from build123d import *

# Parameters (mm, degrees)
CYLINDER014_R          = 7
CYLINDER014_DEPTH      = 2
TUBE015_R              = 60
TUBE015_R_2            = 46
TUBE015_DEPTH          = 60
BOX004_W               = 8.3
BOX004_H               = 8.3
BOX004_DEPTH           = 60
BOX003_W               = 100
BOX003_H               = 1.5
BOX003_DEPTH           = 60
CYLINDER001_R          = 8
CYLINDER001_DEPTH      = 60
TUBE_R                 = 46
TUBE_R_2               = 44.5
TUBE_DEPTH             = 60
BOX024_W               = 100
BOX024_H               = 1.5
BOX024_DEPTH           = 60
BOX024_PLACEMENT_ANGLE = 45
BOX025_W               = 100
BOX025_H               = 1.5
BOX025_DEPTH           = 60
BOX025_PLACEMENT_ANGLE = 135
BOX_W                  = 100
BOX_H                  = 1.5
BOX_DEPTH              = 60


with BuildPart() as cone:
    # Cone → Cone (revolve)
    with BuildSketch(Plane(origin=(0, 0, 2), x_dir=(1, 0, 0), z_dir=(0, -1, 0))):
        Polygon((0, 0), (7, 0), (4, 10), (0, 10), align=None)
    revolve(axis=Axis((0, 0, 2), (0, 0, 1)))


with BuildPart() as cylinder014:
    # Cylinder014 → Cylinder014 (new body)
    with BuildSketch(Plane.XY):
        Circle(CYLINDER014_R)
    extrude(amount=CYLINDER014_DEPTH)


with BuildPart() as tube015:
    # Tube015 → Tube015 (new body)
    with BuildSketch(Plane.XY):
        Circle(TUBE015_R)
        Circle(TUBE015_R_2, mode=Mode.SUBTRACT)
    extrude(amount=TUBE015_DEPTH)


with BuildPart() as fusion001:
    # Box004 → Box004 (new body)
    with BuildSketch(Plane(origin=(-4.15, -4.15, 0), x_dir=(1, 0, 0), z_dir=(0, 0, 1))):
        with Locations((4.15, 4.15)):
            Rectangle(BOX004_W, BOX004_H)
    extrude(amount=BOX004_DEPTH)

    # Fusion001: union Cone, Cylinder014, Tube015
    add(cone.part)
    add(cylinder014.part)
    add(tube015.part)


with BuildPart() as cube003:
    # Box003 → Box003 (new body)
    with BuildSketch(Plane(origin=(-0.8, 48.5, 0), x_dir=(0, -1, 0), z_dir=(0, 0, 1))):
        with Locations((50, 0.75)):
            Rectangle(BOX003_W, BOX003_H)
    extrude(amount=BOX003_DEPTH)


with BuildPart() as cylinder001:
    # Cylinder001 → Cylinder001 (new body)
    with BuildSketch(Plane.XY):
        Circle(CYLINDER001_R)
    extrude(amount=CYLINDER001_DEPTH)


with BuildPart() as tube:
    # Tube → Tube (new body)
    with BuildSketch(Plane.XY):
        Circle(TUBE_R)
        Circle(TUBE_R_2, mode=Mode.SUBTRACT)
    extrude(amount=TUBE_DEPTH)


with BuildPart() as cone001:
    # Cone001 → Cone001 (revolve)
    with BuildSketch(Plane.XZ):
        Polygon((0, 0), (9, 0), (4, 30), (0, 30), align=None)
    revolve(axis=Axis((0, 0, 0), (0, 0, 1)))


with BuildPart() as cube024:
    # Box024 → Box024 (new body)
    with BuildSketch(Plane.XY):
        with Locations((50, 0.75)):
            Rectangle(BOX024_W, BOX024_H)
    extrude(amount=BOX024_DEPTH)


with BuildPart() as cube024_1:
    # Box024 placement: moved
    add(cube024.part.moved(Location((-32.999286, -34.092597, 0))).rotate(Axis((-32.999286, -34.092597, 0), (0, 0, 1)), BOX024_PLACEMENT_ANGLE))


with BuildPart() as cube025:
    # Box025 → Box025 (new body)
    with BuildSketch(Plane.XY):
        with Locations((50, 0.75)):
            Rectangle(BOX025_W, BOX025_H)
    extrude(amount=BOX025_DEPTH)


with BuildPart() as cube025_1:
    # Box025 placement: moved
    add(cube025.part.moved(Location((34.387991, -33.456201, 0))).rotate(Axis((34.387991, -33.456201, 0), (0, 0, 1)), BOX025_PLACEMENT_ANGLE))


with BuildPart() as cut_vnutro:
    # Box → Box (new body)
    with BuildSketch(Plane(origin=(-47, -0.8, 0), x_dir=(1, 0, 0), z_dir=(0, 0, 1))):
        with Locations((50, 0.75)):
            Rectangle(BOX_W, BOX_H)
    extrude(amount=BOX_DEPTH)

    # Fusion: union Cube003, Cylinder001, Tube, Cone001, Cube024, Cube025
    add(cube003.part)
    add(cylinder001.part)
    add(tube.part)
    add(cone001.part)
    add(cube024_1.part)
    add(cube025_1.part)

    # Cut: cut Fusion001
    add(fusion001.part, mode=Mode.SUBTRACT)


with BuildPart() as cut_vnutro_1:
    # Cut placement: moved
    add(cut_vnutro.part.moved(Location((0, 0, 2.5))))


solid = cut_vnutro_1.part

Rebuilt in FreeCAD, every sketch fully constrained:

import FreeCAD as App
import Part
import Sketcher

V = App.Vector


def add_polygon(sketch, points):
    """Adds a closed chain of lines whose ends are joined by coincident constraints."""
    first, n = sketch.GeometryCount, len(points)
    for a, b in zip(points, points[1:] + points[:1]):
        sketch.addGeometry(Part.LineSegment(App.Vector(*a, 0), App.Vector(*b, 0)), False)
    for i in range(n):
        sketch.addConstraint(Sketcher.Constraint("Coincident", first + i, 2, first + (i + 1) % n, 1))

doc = App.newDocument("Part")
body = doc.addObject("PartDesign::Body", "Body")

# Sketch on XZ plane
sketch1 = body.newObject("Sketcher::SketchObject", "Sketch")
sketch1.AttachmentSupport = (doc.getObject("XZ_Plane"), [""])
sketch1.MapMode = "FlatFace"
add_polygon(sketch1, [(0, 2), (7, 2), (4, 12), (0, 12)])  # lines 0-3
sketch1.addConstraint(Sketcher.Constraint("Horizontal", 0))
sketch1.addConstraint(Sketcher.Constraint("Horizontal", 2))
sketch1.addConstraint(Sketcher.Constraint("Vertical", 3))
sketch1.addConstraint(Sketcher.Constraint("PointOnObject", 2, 2, -2))
sketch1.addConstraint(Sketcher.Constraint("DistanceX", 0, 1, 0, 2, 7.0))
sketch1.addConstraint(Sketcher.Constraint("DistanceX", 2, 2, 2, 1, 4.0))
sketch1.addConstraint(Sketcher.Constraint("DistanceY", 3, 2, 3, 1, 10.0))
sketch1.addConstraint(Sketcher.Constraint("DistanceY", -1, 1, 0, 2, 2.0))
revolution = body.newObject("PartDesign::Revolution", "Revolution")
revolution.Profile = sketch1
revolution.ReferenceAxis = (sketch1, ["V_Axis"])
revolution.Angle = 360
body2 = doc.addObject("PartDesign::Body", "Body001")

# Sketch on XY plane
sketch2 = body2.newObject("Sketcher::SketchObject", "Sketch001")
sketch2.AttachmentSupport = (doc.getObject("XY_Plane001"), [""])
sketch2.MapMode = "FlatFace"
sketch2.addGeometry(Part.Circle(V(0, 0, 0), V(0, 0, 1), 7), False)
sketch2.addConstraint(Sketcher.Constraint("Coincident", 0, 3, -1, 1))
sketch2.addConstraint(Sketcher.Constraint("Diameter", 0, 14.0))
pad1 = body2.newObject("PartDesign::Pad", "Pad")
pad1.Profile = sketch2
pad1.Length = 2
body3 = doc.addObject("PartDesign::Body", "Body002")

# Sketch on XY plane
sketch3 = body3.newObject("Sketcher::SketchObject", "Sketch002")
sketch3.AttachmentSupport = (doc.getObject("XY_Plane002"), [""])
sketch3.MapMode = "FlatFace"
sketch3.addGeometry(Part.Circle(V(0, 0, 0), V(0, 0, 1), 60), False)
sketch3.addGeometry(Part.Circle(V(0, 0, 0), V(0, 0, 1), 46), False)
sketch3.addConstraint(Sketcher.Constraint("Coincident", 0, 3, -1, 1))
sketch3.addConstraint(Sketcher.Constraint("Coincident", 1, 3, -1, 1))
sketch3.addConstraint(Sketcher.Constraint("Diameter", 0, 120.0))
sketch3.addConstraint(Sketcher.Constraint("Diameter", 1, 92.0))
pad2 = body3.newObject("PartDesign::Pad", "Pad001")
pad2.Profile = sketch3
pad2.Length = 60
body4 = doc.addObject("PartDesign::Body", "Body003")
body4.AllowCompound = True

# Sketch on XY plane
sketch4 = body4.newObject("Sketcher::SketchObject", "Sketch003")
sketch4.AttachmentSupport = (doc.getObject("XY_Plane003"), [""])
sketch4.MapMode = "FlatFace"
add_polygon(sketch4, [(-4, 4), (-4, -4), (4, -4), (4, 4)])  # lines 0-3
sketch4.addConstraint(Sketcher.Constraint("Vertical", 0))
sketch4.addConstraint(Sketcher.Constraint("Horizontal", 1))
sketch4.addConstraint(Sketcher.Constraint("Vertical", 2))
sketch4.addConstraint(Sketcher.Constraint("Horizontal", 3))
sketch4.addConstraint(Sketcher.Constraint("Symmetric", 0, 2, 2, 2, -1, 1))
sketch4.addConstraint(Sketcher.Constraint("Equal", 3, 0))
sketch4.addConstraint(Sketcher.Constraint("DistanceX", 1, 1, 1, 2, 8.3))
pad3 = body4.newObject("PartDesign::Pad", "Pad002")
pad3.Profile = sketch4
pad3.Length = 60
doc.recompute()

boolean = body4.newObject("PartDesign::Boolean", "Boolean")
boolean.Type = "Fuse"
boolean.addObjects([body])
doc.recompute()

boolean2 = body4.newObject("PartDesign::Boolean", "Boolean001")
boolean2.Type = "Fuse"
boolean2.addObjects([body2])
doc.recompute()

boolean3 = body4.newObject("PartDesign::Boolean", "Boolean002")
boolean3.Type = "Fuse"
boolean3.addObjects([body3])
body5 = doc.addObject("PartDesign::Body", "Body004")

# Sketch on XY plane
sketch5 = body5.newObject("Sketcher::SketchObject", "Sketch004")
sketch5.AttachmentSupport = (doc.getObject("XY_Plane004"), [""])
sketch5.MapMode = "FlatFace"
add_polygon(sketch5, [(0.7, 48.5), (-0.8, 48.5), (-0.8, -51.5), (0.7, -51.5)])  # lines 0-3
sketch5.addConstraint(Sketcher.Constraint("Horizontal", 0))
sketch5.addConstraint(Sketcher.Constraint("Vertical", 1))
sketch5.addConstraint(Sketcher.Constraint("Horizontal", 2))
sketch5.addConstraint(Sketcher.Constraint("Vertical", 3))
sketch5.addConstraint(Sketcher.Constraint("DistanceY", 1, 2, 1, 1, 100.0))
sketch5.addConstraint(Sketcher.Constraint("DistanceX", 0, 2, 0, 1, 1.5))
sketch5.addConstraint(Sketcher.Constraint("DistanceX", 0, 2, -1, 1, 0.8))
sketch5.addConstraint(Sketcher.Constraint("DistanceY", -1, 1, 0, 2, 48.5))
pad4 = body5.newObject("PartDesign::Pad", "Pad003")
pad4.Profile = sketch5
pad4.Length = 60
body6 = doc.addObject("PartDesign::Body", "Body005")

# Sketch on XY plane
sketch6 = body6.newObject("Sketcher::SketchObject", "Sketch005")
sketch6.AttachmentSupport = (doc.getObject("XY_Plane005"), [""])
sketch6.MapMode = "FlatFace"
sketch6.addGeometry(Part.Circle(V(0, 0, 0), V(0, 0, 1), 8), False)
sketch6.addConstraint(Sketcher.Constraint("Coincident", 0, 3, -1, 1))
sketch6.addConstraint(Sketcher.Constraint("Diameter", 0, 16.0))
pad5 = body6.newObject("PartDesign::Pad", "Pad004")
pad5.Profile = sketch6
pad5.Length = 60
body7 = doc.addObject("PartDesign::Body", "Body006")

# Sketch on XY plane
sketch7 = body7.newObject("Sketcher::SketchObject", "Sketch006")
sketch7.AttachmentSupport = (doc.getObject("XY_Plane006"), [""])
sketch7.MapMode = "FlatFace"
sketch7.addGeometry(Part.Circle(V(0, 0, 0), V(0, 0, 1), 46), False)
sketch7.addGeometry(Part.Circle(V(0, 0, 0), V(0, 0, 1), 44), False)
sketch7.addConstraint(Sketcher.Constraint("Coincident", 0, 3, -1, 1))
sketch7.addConstraint(Sketcher.Constraint("Coincident", 1, 3, -1, 1))
sketch7.addConstraint(Sketcher.Constraint("Diameter", 0, 92.0))
sketch7.addConstraint(Sketcher.Constraint("Diameter", 1, 89.0))
pad6 = body7.newObject("PartDesign::Pad", "Pad005")
pad6.Profile = sketch7
pad6.Length = 60
body8 = doc.addObject("PartDesign::Body", "Body007")

# Sketch on XZ plane
sketch8 = body8.newObject("Sketcher::SketchObject", "Sketch007")
sketch8.AttachmentSupport = (doc.getObject("XZ_Plane007"), [""])
sketch8.MapMode = "FlatFace"
add_polygon(sketch8, [(0, 0), (9, 0), (4, 30), (0, 30)])  # lines 0-3
sketch8.addConstraint(Sketcher.Constraint("Horizontal", 0))
sketch8.addConstraint(Sketcher.Constraint("Horizontal", 2))
sketch8.addConstraint(Sketcher.Constraint("Vertical", 3))
sketch8.addConstraint(Sketcher.Constraint("Coincident", 3, 2, -1, 1))
sketch8.addConstraint(Sketcher.Constraint("DistanceX", 0, 1, 0, 2, 9.0))
sketch8.addConstraint(Sketcher.Constraint("DistanceX", 2, 2, 2, 1, 4.0))
sketch8.addConstraint(Sketcher.Constraint("DistanceY", 3, 2, 3, 1, 30.0))
revolution2 = body8.newObject("PartDesign::Revolution", "Revolution001")
revolution2.Profile = sketch8
revolution2.ReferenceAxis = (sketch8, ["V_Axis"])
revolution2.Angle = 360
body9 = doc.addObject("PartDesign::Body", "Body008")

# Sketch on XY plane
sketch9 = body9.newObject("Sketcher::SketchObject", "Sketch008")
sketch9.AttachmentSupport = (doc.getObject("XY_Plane008"), [""])
sketch9.MapMode = "FlatFace"
add_polygon(sketch9, [(0, 1.5), (0, 0), (100, 0), (100, 1.5)])  # lines 0-3
sketch9.addConstraint(Sketcher.Constraint("Vertical", 0))
sketch9.addConstraint(Sketcher.Constraint("Horizontal", 1))
sketch9.addConstraint(Sketcher.Constraint("Vertical", 2))
sketch9.addConstraint(Sketcher.Constraint("Horizontal", 3))
sketch9.addConstraint(Sketcher.Constraint("Coincident", 0, 2, -1, 1))
sketch9.addConstraint(Sketcher.Constraint("DistanceX", 1, 1, 1, 2, 100.0))
sketch9.addConstraint(Sketcher.Constraint("DistanceY", 0, 2, 0, 1, 1.5))
pad7 = body9.newObject("PartDesign::Pad", "Pad006")
pad7.Profile = sketch9
pad7.Length = 60
body10 = doc.addObject("PartDesign::Body", "Body009")
doc.recompute()

body9.Placement = App.Placement(V(-32.999286, -34.092597, 0), App.Rotation(V(0, 0, 1), 45))
boolean4 = body10.newObject("PartDesign::Boolean", "Boolean003")
boolean4.Type = "Fuse"
boolean4.addObjects([body9])
body11 = doc.addObject("PartDesign::Body", "Body010")

# Sketch on XY plane
sketch10 = body11.newObject("Sketcher::SketchObject", "Sketch009")
sketch10.AttachmentSupport = (doc.getObject("XY_Plane010"), [""])
sketch10.MapMode = "FlatFace"
add_polygon(sketch10, [(0, 1.5), (0, 0), (100, 0), (100, 1.5)])  # lines 0-3
sketch10.addConstraint(Sketcher.Constraint("Vertical", 0))
sketch10.addConstraint(Sketcher.Constraint("Horizontal", 1))
sketch10.addConstraint(Sketcher.Constraint("Vertical", 2))
sketch10.addConstraint(Sketcher.Constraint("Horizontal", 3))
sketch10.addConstraint(Sketcher.Constraint("Coincident", 0, 2, -1, 1))
sketch10.addConstraint(Sketcher.Constraint("DistanceX", 1, 1, 1, 2, 100.0))
sketch10.addConstraint(Sketcher.Constraint("DistanceY", 0, 2, 0, 1, 1.5))
pad8 = body11.newObject("PartDesign::Pad", "Pad007")
pad8.Profile = sketch10
pad8.Length = 60
body12 = doc.addObject("PartDesign::Body", "Body011")
doc.recompute()

body11.Placement = App.Placement(V(34.387991, -33.456201, 0), App.Rotation(V(0, 0, 1), 135))
boolean5 = body12.newObject("PartDesign::Boolean", "Boolean004")
boolean5.Type = "Fuse"
boolean5.addObjects([body11])
body13 = doc.addObject("PartDesign::Body", "Body012")

# Sketch on XY plane
sketch11 = body13.newObject("Sketcher::SketchObject", "Sketch010")
sketch11.AttachmentSupport = (doc.getObject("XY_Plane012"), [""])
sketch11.MapMode = "FlatFace"
add_polygon(sketch11, [(-47, 0.7), (-47, -0.8), (53, -0.8), (53, 0.7)])  # lines 0-3
sketch11.addConstraint(Sketcher.Constraint("Vertical", 0))
sketch11.addConstraint(Sketcher.Constraint("Horizontal", 1))
sketch11.addConstraint(Sketcher.Constraint("Vertical", 2))
sketch11.addConstraint(Sketcher.Constraint("Horizontal", 3))
sketch11.addConstraint(Sketcher.Constraint("DistanceX", 1, 1, 1, 2, 100.0))
sketch11.addConstraint(Sketcher.Constraint("DistanceY", 0, 2, 0, 1, 1.5))
sketch11.addConstraint(Sketcher.Constraint("DistanceX", 0, 2, -1, 1, 47.0))
sketch11.addConstraint(Sketcher.Constraint("DistanceY", 0, 2, -1, 1, 0.8))
pad9 = body13.newObject("PartDesign::Pad", "Pad008")
pad9.Profile = sketch11
pad9.Length = 60
doc.recompute()

boolean6 = body13.newObject("PartDesign::Boolean", "Boolean005")
boolean6.Type = "Fuse"
boolean6.addObjects([body5])
doc.recompute()

boolean7 = body13.newObject("PartDesign::Boolean", "Boolean006")
boolean7.Type = "Fuse"
boolean7.addObjects([body6])
doc.recompute()

boolean8 = body13.newObject("PartDesign::Boolean", "Boolean007")
boolean8.Type = "Fuse"
boolean8.addObjects([body7])
doc.recompute()

boolean9 = body13.newObject("PartDesign::Boolean", "Boolean008")
boolean9.Type = "Fuse"
boolean9.addObjects([body8])
doc.recompute()

boolean10 = body13.newObject("PartDesign::Boolean", "Boolean009")
boolean10.Type = "Fuse"
boolean10.addObjects([body10])
doc.recompute()

boolean11 = body13.newObject("PartDesign::Boolean", "Boolean010")
boolean11.Type = "Fuse"
boolean11.addObjects([body12])
doc.recompute()

boolean12 = body13.newObject("PartDesign::Boolean", "Boolean011")
boolean12.Type = "Cut"
boolean12.addObjects([body4])
body14 = doc.addObject("PartDesign::Body", "Body013")
doc.recompute()

body13.Placement = App.Placement(V(0, 0, 2.5), App.Rotation(V(0, 0, 1), 0))
boolean13 = body14.newObject("PartDesign::Boolean", "Boolean012")
boolean13.Type = "Fuse"
boolean13.addObjects([body13])

doc.recompute()
